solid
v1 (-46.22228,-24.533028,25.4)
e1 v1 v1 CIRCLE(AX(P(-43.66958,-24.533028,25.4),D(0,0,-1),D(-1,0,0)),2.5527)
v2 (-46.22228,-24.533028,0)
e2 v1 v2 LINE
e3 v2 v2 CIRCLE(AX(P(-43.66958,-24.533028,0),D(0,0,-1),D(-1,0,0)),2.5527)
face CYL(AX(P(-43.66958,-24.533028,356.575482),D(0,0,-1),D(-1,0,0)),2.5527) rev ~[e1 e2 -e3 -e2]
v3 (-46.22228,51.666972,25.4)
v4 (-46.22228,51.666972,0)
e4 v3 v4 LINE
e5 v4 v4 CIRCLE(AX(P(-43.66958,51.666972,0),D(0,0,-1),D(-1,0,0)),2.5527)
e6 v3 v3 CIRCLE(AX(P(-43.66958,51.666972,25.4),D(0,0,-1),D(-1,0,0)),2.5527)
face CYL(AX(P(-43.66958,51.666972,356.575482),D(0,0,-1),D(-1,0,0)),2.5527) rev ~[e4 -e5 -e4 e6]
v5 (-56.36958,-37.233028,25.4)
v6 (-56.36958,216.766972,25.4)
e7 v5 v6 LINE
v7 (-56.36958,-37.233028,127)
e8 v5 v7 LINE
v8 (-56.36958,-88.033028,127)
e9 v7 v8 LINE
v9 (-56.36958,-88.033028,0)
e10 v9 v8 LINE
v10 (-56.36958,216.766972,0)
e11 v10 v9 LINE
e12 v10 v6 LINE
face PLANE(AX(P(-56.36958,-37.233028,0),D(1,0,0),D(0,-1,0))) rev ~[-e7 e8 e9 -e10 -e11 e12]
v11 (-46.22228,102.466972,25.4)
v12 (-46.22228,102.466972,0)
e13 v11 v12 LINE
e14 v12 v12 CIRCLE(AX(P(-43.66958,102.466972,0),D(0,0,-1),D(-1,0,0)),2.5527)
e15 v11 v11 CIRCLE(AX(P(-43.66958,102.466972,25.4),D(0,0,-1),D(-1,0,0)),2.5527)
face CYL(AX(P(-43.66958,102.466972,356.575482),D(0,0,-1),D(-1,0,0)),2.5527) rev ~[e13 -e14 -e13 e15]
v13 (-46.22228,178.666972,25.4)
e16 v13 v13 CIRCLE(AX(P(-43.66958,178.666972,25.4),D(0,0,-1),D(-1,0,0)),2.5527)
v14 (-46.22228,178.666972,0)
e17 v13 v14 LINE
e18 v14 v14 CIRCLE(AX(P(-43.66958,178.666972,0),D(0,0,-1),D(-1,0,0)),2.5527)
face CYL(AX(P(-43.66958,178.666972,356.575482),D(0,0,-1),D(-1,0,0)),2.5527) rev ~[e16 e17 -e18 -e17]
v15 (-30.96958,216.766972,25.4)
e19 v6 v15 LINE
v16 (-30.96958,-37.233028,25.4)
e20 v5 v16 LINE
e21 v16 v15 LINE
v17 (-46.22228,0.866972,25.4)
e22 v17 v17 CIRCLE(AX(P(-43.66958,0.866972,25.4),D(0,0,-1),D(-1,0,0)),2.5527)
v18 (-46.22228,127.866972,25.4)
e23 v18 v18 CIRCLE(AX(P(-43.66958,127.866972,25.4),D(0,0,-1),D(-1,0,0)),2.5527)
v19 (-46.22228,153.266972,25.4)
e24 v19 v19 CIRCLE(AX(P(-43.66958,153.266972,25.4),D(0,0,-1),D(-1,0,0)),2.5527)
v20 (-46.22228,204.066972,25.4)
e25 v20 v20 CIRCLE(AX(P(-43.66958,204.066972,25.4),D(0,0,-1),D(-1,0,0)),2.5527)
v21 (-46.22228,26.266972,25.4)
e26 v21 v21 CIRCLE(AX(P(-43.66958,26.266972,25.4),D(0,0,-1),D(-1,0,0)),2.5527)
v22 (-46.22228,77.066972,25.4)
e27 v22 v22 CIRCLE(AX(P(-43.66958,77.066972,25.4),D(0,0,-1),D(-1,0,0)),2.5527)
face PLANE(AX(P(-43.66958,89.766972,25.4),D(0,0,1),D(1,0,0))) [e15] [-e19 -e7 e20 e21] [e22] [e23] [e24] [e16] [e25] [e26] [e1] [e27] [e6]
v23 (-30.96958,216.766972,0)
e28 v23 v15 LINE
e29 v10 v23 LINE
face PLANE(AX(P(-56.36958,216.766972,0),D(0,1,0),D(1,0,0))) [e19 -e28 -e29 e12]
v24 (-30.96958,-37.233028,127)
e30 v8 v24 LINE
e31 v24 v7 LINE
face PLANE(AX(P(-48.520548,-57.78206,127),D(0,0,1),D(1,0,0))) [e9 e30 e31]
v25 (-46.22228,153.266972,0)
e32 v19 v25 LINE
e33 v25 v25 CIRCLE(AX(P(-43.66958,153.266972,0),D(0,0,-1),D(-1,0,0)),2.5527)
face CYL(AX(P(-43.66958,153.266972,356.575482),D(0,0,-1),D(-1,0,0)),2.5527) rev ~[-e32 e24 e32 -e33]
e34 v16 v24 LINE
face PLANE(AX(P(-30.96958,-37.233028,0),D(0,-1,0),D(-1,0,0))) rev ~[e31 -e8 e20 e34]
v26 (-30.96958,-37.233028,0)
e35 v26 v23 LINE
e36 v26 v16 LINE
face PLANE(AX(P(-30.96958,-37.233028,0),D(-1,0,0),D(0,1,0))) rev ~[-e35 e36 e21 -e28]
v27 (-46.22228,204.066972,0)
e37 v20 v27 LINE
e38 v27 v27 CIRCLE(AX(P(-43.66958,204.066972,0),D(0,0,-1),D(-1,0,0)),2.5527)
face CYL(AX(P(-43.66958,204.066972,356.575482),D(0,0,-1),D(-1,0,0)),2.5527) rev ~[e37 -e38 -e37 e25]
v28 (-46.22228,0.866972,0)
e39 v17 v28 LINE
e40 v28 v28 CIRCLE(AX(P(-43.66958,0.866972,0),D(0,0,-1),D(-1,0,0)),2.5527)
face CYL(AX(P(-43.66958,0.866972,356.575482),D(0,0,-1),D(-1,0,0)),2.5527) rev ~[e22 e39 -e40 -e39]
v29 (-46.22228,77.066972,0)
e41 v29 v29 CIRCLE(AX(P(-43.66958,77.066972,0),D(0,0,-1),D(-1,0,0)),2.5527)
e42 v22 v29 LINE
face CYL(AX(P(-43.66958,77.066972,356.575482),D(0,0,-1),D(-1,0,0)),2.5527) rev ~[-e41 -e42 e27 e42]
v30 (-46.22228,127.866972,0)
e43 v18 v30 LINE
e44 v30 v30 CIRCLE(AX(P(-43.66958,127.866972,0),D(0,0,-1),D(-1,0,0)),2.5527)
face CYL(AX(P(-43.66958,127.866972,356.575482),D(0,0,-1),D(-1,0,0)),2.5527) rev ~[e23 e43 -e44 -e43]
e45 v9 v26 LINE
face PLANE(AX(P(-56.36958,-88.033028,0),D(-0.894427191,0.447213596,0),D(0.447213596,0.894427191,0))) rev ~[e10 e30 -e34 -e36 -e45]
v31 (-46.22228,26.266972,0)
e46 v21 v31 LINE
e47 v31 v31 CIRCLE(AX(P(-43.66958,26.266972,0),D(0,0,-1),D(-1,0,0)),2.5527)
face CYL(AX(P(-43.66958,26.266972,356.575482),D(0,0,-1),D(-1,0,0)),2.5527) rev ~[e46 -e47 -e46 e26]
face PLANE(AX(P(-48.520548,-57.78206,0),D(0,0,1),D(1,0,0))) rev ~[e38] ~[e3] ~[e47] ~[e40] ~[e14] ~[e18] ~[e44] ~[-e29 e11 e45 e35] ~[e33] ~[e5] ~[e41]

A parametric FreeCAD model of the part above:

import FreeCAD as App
import Part
import Sketcher
Q = App.Units.Quantity


def add_polygon(sketch, points):
    """Adds a closed chain of lines whose ends are joined by coincident constraints."""
    first, n = sketch.GeometryCount, len(points)
    for a, b in zip(points, points[1:] + points[:1]):
        sketch.addGeometry(Part.LineSegment(App.Vector(*a, 0), App.Vector(*b, 0)), False)
    for i in range(n):
        sketch.addConstraint(Sketcher.Constraint("Coincident", first + i, 2, first + (i + 1) % n, 1))

doc = App.newDocument("Part")
body = doc.addObject("PartDesign::Body", "Body")

# Sketch on XY plane
sketch1 = body.newObject("Sketcher::SketchObject", "Sketch")
sketch1.AttachmentSupport = (doc.getObject("XY_Plane"), [""])
sketch1.MapMode = "FlatFace"
add_polygon(sketch1, [(-56, 217), (-56, -37), (-31, -37), (-31, 217)])  # lines 0-3
sketch1.addConstraint([
    Sketcher.Constraint("Vertical", 0),
    Sketcher.Constraint("Horizontal", 1),
    Sketcher.Constraint("Vertical", 2),
    Sketcher.Constraint("Horizontal", 3),
    Sketcher.Constraint("DistanceX", 1, 1, 1, 2, Q("1 in")),
    Sketcher.Constraint("DistanceY", 0, 2, 0, 1, Q("10 in")),
    Sketcher.Constraint("DistanceX", 0, 2, -1, 1, Q("56.36958 mm")),
    Sketcher.Constraint("DistanceY", 0, 2, -1, 1, Q("37.233028 mm")),
])
pad1 = body.newObject("PartDesign::Pad", "Pad")
pad1.Profile = sketch1
pad1.Length = Q("1 in")

# Sketch on XY plane
sketch2 = body.newObject("Sketcher::SketchObject", "Sketch001")
sketch2.AttachmentSupport = (doc.getObject("XY_Plane"), [""])
sketch2.MapMode = "FlatFace"
add_polygon(sketch2, [(-31, -37), (-56, -37), (-56, -88)])  # lines 0-2
sketch2.addConstraint([
    Sketcher.Constraint("Horizontal", 0),
    Sketcher.Constraint("Vertical", 1),
    Sketcher.Constraint("DistanceX", 0, 2, 0, 1, Q("1 in")),
    Sketcher.Constraint("DistanceY", 1, 2, 1, 1, Q("2 in")),
    Sketcher.Constraint("DistanceX", 0, 2, -1, 1, Q("56.36958 mm")),
    Sketcher.Constraint("DistanceY", 1, 2, -1, 1, Q("88.033028 mm")),
])
pad2 = body.newObject("PartDesign::Pad", "Pad001")
pad2.Profile = sketch2
pad2.Length = Q("5 in")

# Sketch on XY plane
sketch3 = body.newObject("Sketcher::SketchObject", "Sketch002")
sketch3.AttachmentSupport = (doc.getObject("XY_Plane"), [""])
sketch3.MapMode = "FlatFace"
sketch3.AttachmentOffset = App.Placement(App.Vector(0, 0, 1 * 25.4), App.Rotation())
sketch3.addGeometry([
    Part.Circle(App.Vector(-43.7, 204.1, 0), App.Vector(0, 0, 1), 2.6),  # 0
    Part.Circle(App.Vector(-43.7, 153.3, 0), App.Vector(0, 0, 1), 2.6),  # 1
    Part.Circle(App.Vector(-43.7, 178.7, 0), App.Vector(0, 0, 1), 2.6),  # 2
    Part.Circle(App.Vector(-43.7, 127.9, 0), App.Vector(0, 0, 1), 2.6),  # 3
    Part.Circle(App.Vector(-43.7, 102.5, 0), App.Vector(0, 0, 1), 2.6),  # 4
    Part.Circle(App.Vector(-43.7, 77.1, 0), App.Vector(0, 0, 1), 2.6),  # 5
    Part.Circle(App.Vector(-43.7, 0.9, 0), App.Vector(0, 0, 1), 2.6),  # 6
    Part.Circle(App.Vector(-43.7, 51.7, 0), App.Vector(0, 0, 1), 2.6),  # 7
    Part.Circle(App.Vector(-43.7, 26.3, 0), App.Vector(0, 0, 1), 2.6),  # 8
    Part.Circle(App.Vector(-43.7, -24.5, 0), App.Vector(0, 0, 1), 2.6),  # 9
], False)
sketch3.addConstraint([
    Sketcher.Constraint("Equal", 0, 1),
    Sketcher.Constraint("Equal", 1, 2),
    Sketcher.Constraint("Equal", 2, 3),
    Sketcher.Constraint("Equal", 3, 4),
    Sketcher.Constraint("Equal", 4, 5),
    Sketcher.Constraint("Equal", 5, 6),
    Sketcher.Constraint("Equal", 6, 7),
    Sketcher.Constraint("Equal", 7, 8),
    Sketcher.Constraint("Equal", 8, 9),
    Sketcher.Constraint("Vertical", 0, 3, 1, 3),
    Sketcher.Constraint("Vertical", 1, 3, 2, 3),
    Sketcher.Constraint("Vertical", 2, 3, 3, 3),
    Sketcher.Constraint("Vertical", 3, 3, 4, 3),
    Sketcher.Constraint("Vertical", 4, 3, 5, 3),
    Sketcher.Constraint("Vertical", 5, 3, 6, 3),
    Sketcher.Constraint("Vertical", 6, 3, 7, 3),
    Sketcher.Constraint("Vertical", 7, 3, 8, 3),
    Sketcher.Constraint("Vertical", 8, 3, 9, 3),
    Sketcher.Constraint("Diameter", 0, Q("0.201 in")),
    Sketcher.Constraint("DistanceY", 1, 3, 0, 3, Q("2 in")),
    Sketcher.Constraint("DistanceY", 1, 3, 2, 3, Q("1 in")),
    Sketcher.Constraint("DistanceY", 3, 3, 1, 3, Q("1 in")),
    Sketcher.Constraint("DistanceY", 4, 3, 3, 3, Q("1 in")),
    Sketcher.Constraint("DistanceY", 5, 3, 4, 3, Q("1 in")),
    Sketcher.Constraint("DistanceY", 6, 3, 5, 3, Q("3 in")),
    Sketcher.Constraint("DistanceY", 7, 3, 5, 3, Q("1 in")),
    Sketcher.Constraint("DistanceY", 6, 3, 8, 3, Q("1 in")),
    Sketcher.Constraint("DistanceY", 9, 3, 6, 3, Q("1 in")),
    Sketcher.Constraint("DistanceX", 0, 3, -1, 1, Q("43.66958 mm")),
    Sketcher.Constraint("DistanceY", -1, 1, 0, 3, Q("204.066972 mm")),
])
doc.recompute()
hole = body.newObject("PartDesign::Hole", "Hole")
hole.Profile = sketch3
hole.ThreadType = "None"
hole.Diameter = Q("0.201 in")
hole.DepthType = "ThroughAll"

doc.recompute()
